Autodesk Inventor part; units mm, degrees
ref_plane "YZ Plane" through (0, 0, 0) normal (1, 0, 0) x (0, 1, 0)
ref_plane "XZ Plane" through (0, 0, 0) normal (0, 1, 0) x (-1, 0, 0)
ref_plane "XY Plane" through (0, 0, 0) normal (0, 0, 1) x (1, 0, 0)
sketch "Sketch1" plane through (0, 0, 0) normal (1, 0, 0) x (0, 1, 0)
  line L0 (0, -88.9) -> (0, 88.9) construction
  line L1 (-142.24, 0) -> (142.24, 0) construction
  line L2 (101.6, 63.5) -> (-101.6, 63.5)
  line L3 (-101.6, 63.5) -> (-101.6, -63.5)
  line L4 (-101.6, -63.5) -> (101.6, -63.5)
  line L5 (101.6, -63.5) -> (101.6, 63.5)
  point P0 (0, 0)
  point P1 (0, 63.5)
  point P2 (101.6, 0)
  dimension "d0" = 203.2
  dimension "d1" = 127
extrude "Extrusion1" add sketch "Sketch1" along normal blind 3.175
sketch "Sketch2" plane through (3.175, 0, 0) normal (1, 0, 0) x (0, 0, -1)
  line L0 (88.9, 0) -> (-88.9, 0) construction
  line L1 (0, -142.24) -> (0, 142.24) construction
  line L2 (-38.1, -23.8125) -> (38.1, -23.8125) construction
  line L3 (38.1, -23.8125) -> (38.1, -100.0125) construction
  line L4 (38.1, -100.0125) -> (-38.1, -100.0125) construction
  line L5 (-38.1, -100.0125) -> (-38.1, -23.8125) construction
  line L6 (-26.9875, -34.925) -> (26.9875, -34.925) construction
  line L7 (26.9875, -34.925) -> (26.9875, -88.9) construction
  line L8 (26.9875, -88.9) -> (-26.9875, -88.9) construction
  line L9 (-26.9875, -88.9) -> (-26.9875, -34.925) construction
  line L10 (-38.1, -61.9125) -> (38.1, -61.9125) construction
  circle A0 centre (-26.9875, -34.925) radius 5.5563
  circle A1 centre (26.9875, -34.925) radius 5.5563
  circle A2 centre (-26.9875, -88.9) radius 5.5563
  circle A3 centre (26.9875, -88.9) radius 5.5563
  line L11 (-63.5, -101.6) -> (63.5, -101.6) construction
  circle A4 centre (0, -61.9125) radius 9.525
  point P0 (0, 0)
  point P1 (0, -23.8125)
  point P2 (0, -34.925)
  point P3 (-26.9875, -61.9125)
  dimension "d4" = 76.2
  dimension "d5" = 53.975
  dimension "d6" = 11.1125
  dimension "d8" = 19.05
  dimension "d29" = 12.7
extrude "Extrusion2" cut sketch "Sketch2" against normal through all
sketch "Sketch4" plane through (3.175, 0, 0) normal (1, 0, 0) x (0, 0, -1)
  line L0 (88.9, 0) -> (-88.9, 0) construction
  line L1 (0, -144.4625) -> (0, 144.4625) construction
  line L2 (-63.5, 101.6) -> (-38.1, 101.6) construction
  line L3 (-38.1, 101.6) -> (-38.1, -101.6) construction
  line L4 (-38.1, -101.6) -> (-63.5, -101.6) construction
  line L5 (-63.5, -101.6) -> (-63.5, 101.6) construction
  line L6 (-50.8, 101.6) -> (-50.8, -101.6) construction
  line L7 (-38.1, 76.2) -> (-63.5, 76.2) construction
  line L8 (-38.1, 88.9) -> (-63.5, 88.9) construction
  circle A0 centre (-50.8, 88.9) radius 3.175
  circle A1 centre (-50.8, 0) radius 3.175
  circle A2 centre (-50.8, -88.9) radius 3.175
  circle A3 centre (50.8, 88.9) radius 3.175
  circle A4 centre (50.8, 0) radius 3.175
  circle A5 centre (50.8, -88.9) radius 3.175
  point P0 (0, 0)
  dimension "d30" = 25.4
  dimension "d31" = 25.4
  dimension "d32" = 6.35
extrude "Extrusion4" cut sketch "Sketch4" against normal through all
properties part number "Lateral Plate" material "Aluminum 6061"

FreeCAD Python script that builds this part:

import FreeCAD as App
import Part
import Sketcher
Q = App.Units.Quantity

doc = App.newDocument("Part")
body = doc.addObject("PartDesign::Body", "Body")

# Sketch on YZ plane
sketch1 = body.newObject("Sketcher::SketchObject", "Sketch")
sketch1.AttachmentSupport = (doc.getObject("YZ_Plane"), [""])
sketch1.MapMode = "FlatFace"
sketch1.addGeometry([
    Part.LineSegment(App.Vector(102, -64, 0), App.Vector(102, 64, 0)),
    Part.LineSegment(App.Vector(102, 64, 0), App.Vector(-102, 64, 0)),
    Part.LineSegment(App.Vector(-102, 64, 0), App.Vector(-102, -64, 0)),
    Part.LineSegment(App.Vector(-102, -64, 0), App.Vector(102, -64, 0)),
], False)
sketch1.addConstraint([
    Sketcher.Constraint("Coincident", 0, 2, 1, 1),
    Sketcher.Constraint("Coincident", 1, 2, 2, 1),
    Sketcher.Constraint("Coincident", 2, 2, 3, 1),
    Sketcher.Constraint("Coincident", 3, 2, 0, 1),
    Sketcher.Constraint("Vertical", 0),
    Sketcher.Constraint("Horizontal", 1),
    Sketcher.Constraint("Vertical", 2),
    Sketcher.Constraint("Horizontal", 3),
    Sketcher.Constraint("Symmetric", 0, 2, 2, 2, -1, 1),
    Sketcher.Constraint("DistanceX", 1, 2, 1, 1, Q("8 in")),
    Sketcher.Constraint("DistanceY", 0, 1, 0, 2, Q("5 in")),
])
pad1 = body.newObject("PartDesign::Pad", "Pad")
pad1.Profile = sketch1
pad1.Length = Q("0.125 in")

# Sketch on YZ plane
sketch2 = body.newObject("Sketcher::SketchObject", "Sketch001")
sketch2.AttachmentSupport = (doc.getObject("YZ_Plane"), [""])
sketch2.MapMode = "FlatFace"
sketch2.AttachmentOffset = App.Placement(App.Vector(0, 0, 0.125 * 25.4), App.Rotation())
sketch2.addGeometry([
    Part.Circle(App.Vector(-35, 27, 0), App.Vector(0, 0, 1), 6),  # 0
    Part.Circle(App.Vector(-35, -27, 0), App.Vector(0, 0, 1), 6),  # 1
    Part.Circle(App.Vector(-89, 27, 0), App.Vector(0, 0, 1), 6),  # 2
    Part.Circle(App.Vector(-89, -27, 0), App.Vector(0, 0, 1), 6),  # 3
    Part.Circle(App.Vector(-62, 0, 0), App.Vector(0, 0, 1), 10),  # 4
], False)
sketch2.addConstraint([
    Sketcher.Constraint("Equal", 0, 1),
    Sketcher.Constraint("Equal", 1, 2),
    Sketcher.Constraint("Equal", 2, 3),
    Sketcher.Constraint("Symmetric", 0, 3, 1, 3, -1),
    Sketcher.Constraint("Symmetric", 2, 3, 3, 3, -1),
    Sketcher.Constraint("PointOnObject", 4, 3, -1),
    Sketcher.Constraint("Horizontal", 0, 3, 2, 3),
    Sketcher.Constraint("Diameter", 4, Q("0.75 in")),
    Sketcher.Constraint("Diameter", 0, Q("0.4375 in")),
    Sketcher.Constraint("DistanceY", 1, 3, 0, 3, Q("2.125 in")),
    Sketcher.Constraint("DistanceX", 2, 3, 0, 3, Q("2.125 in")),
    Sketcher.Constraint("DistanceX", 2, 3, -1, 1, Q("3.5 in")),
    Sketcher.Constraint("DistanceX", 4, 3, -1, 1, Q("2.4375 in")),
])
pocket1 = body.newObject("PartDesign::Pocket", "Pocket")
pocket1.Profile = sketch2
pocket1.Type = "ThroughAll"

# Sketch on YZ plane
sketch3 = body.newObject("Sketcher::SketchObject", "Sketch002")
sketch3.AttachmentSupport = (doc.getObject("YZ_Plane"), [""])
sketch3.MapMode = "FlatFace"
sketch3.AttachmentOffset = App.Placement(App.Vector(0, 0, 0.125 * 25.4), App.Rotation())
sketch3.addGeometry([
    Part.Circle(App.Vector(88.9, 50.8, 0), App.Vector(0, 0, 1), 3.2),  # 0
    Part.Circle(App.Vector(0, 50.8, 0), App.Vector(0, 0, 1), 3.2),  # 1
    Part.Circle(App.Vector(-88.9, 50.8, 0), App.Vector(0, 0, 1), 3.2),  # 2
    Part.Circle(App.Vector(88.9, -50.8, 0), App.Vector(0, 0, 1), 3.2),  # 3
    Part.Circle(App.Vector(0, -50.8, 0), App.Vector(0, 0, 1), 3.2),  # 4
    Part.Circle(App.Vector(-88.9, -50.8, 0), App.Vector(0, 0, 1), 3.2),  # 5
], False)
sketch3.addConstraint([
    Sketcher.Constraint("Equal", 0, 1),
    Sketcher.Constraint("Equal", 1, 2),
    Sketcher.Constraint("Equal", 2, 3),
    Sketcher.Constraint("Equal", 3, 4),
    Sketcher.Constraint("Equal", 4, 5),
    Sketcher.Constraint("Symmetric", 2, 3, 3, 3, -1, 1),
    Sketcher.Constraint("Symmetric", 1, 3, 4, 3, -1, 1),
    Sketcher.Constraint("Symmetric", 0, 3, 5, 3, -1, 1),
    Sketcher.Constraint("Symmetric", 0, 3, 2, 3, -2),
    Sketcher.Constraint("PointOnObject", 1, 3, -2),
    Sketcher.Constraint("Horizontal", 0, 3, 1, 3),
    Sketcher.Constraint("Diameter", 0, Q("0.25 in")),
    Sketcher.Constraint("DistanceY", -1, 1, 0, 3, Q("2 in")),
    Sketcher.Constraint("DistanceX", 2, 3, 0, 3, Q("7 in")),
])
pocket2 = body.newObject("PartDesign::Pocket", "Pocket001")
pocket2.Profile = sketch3
pocket2.Type = "ThroughAll"

doc.recompute()
